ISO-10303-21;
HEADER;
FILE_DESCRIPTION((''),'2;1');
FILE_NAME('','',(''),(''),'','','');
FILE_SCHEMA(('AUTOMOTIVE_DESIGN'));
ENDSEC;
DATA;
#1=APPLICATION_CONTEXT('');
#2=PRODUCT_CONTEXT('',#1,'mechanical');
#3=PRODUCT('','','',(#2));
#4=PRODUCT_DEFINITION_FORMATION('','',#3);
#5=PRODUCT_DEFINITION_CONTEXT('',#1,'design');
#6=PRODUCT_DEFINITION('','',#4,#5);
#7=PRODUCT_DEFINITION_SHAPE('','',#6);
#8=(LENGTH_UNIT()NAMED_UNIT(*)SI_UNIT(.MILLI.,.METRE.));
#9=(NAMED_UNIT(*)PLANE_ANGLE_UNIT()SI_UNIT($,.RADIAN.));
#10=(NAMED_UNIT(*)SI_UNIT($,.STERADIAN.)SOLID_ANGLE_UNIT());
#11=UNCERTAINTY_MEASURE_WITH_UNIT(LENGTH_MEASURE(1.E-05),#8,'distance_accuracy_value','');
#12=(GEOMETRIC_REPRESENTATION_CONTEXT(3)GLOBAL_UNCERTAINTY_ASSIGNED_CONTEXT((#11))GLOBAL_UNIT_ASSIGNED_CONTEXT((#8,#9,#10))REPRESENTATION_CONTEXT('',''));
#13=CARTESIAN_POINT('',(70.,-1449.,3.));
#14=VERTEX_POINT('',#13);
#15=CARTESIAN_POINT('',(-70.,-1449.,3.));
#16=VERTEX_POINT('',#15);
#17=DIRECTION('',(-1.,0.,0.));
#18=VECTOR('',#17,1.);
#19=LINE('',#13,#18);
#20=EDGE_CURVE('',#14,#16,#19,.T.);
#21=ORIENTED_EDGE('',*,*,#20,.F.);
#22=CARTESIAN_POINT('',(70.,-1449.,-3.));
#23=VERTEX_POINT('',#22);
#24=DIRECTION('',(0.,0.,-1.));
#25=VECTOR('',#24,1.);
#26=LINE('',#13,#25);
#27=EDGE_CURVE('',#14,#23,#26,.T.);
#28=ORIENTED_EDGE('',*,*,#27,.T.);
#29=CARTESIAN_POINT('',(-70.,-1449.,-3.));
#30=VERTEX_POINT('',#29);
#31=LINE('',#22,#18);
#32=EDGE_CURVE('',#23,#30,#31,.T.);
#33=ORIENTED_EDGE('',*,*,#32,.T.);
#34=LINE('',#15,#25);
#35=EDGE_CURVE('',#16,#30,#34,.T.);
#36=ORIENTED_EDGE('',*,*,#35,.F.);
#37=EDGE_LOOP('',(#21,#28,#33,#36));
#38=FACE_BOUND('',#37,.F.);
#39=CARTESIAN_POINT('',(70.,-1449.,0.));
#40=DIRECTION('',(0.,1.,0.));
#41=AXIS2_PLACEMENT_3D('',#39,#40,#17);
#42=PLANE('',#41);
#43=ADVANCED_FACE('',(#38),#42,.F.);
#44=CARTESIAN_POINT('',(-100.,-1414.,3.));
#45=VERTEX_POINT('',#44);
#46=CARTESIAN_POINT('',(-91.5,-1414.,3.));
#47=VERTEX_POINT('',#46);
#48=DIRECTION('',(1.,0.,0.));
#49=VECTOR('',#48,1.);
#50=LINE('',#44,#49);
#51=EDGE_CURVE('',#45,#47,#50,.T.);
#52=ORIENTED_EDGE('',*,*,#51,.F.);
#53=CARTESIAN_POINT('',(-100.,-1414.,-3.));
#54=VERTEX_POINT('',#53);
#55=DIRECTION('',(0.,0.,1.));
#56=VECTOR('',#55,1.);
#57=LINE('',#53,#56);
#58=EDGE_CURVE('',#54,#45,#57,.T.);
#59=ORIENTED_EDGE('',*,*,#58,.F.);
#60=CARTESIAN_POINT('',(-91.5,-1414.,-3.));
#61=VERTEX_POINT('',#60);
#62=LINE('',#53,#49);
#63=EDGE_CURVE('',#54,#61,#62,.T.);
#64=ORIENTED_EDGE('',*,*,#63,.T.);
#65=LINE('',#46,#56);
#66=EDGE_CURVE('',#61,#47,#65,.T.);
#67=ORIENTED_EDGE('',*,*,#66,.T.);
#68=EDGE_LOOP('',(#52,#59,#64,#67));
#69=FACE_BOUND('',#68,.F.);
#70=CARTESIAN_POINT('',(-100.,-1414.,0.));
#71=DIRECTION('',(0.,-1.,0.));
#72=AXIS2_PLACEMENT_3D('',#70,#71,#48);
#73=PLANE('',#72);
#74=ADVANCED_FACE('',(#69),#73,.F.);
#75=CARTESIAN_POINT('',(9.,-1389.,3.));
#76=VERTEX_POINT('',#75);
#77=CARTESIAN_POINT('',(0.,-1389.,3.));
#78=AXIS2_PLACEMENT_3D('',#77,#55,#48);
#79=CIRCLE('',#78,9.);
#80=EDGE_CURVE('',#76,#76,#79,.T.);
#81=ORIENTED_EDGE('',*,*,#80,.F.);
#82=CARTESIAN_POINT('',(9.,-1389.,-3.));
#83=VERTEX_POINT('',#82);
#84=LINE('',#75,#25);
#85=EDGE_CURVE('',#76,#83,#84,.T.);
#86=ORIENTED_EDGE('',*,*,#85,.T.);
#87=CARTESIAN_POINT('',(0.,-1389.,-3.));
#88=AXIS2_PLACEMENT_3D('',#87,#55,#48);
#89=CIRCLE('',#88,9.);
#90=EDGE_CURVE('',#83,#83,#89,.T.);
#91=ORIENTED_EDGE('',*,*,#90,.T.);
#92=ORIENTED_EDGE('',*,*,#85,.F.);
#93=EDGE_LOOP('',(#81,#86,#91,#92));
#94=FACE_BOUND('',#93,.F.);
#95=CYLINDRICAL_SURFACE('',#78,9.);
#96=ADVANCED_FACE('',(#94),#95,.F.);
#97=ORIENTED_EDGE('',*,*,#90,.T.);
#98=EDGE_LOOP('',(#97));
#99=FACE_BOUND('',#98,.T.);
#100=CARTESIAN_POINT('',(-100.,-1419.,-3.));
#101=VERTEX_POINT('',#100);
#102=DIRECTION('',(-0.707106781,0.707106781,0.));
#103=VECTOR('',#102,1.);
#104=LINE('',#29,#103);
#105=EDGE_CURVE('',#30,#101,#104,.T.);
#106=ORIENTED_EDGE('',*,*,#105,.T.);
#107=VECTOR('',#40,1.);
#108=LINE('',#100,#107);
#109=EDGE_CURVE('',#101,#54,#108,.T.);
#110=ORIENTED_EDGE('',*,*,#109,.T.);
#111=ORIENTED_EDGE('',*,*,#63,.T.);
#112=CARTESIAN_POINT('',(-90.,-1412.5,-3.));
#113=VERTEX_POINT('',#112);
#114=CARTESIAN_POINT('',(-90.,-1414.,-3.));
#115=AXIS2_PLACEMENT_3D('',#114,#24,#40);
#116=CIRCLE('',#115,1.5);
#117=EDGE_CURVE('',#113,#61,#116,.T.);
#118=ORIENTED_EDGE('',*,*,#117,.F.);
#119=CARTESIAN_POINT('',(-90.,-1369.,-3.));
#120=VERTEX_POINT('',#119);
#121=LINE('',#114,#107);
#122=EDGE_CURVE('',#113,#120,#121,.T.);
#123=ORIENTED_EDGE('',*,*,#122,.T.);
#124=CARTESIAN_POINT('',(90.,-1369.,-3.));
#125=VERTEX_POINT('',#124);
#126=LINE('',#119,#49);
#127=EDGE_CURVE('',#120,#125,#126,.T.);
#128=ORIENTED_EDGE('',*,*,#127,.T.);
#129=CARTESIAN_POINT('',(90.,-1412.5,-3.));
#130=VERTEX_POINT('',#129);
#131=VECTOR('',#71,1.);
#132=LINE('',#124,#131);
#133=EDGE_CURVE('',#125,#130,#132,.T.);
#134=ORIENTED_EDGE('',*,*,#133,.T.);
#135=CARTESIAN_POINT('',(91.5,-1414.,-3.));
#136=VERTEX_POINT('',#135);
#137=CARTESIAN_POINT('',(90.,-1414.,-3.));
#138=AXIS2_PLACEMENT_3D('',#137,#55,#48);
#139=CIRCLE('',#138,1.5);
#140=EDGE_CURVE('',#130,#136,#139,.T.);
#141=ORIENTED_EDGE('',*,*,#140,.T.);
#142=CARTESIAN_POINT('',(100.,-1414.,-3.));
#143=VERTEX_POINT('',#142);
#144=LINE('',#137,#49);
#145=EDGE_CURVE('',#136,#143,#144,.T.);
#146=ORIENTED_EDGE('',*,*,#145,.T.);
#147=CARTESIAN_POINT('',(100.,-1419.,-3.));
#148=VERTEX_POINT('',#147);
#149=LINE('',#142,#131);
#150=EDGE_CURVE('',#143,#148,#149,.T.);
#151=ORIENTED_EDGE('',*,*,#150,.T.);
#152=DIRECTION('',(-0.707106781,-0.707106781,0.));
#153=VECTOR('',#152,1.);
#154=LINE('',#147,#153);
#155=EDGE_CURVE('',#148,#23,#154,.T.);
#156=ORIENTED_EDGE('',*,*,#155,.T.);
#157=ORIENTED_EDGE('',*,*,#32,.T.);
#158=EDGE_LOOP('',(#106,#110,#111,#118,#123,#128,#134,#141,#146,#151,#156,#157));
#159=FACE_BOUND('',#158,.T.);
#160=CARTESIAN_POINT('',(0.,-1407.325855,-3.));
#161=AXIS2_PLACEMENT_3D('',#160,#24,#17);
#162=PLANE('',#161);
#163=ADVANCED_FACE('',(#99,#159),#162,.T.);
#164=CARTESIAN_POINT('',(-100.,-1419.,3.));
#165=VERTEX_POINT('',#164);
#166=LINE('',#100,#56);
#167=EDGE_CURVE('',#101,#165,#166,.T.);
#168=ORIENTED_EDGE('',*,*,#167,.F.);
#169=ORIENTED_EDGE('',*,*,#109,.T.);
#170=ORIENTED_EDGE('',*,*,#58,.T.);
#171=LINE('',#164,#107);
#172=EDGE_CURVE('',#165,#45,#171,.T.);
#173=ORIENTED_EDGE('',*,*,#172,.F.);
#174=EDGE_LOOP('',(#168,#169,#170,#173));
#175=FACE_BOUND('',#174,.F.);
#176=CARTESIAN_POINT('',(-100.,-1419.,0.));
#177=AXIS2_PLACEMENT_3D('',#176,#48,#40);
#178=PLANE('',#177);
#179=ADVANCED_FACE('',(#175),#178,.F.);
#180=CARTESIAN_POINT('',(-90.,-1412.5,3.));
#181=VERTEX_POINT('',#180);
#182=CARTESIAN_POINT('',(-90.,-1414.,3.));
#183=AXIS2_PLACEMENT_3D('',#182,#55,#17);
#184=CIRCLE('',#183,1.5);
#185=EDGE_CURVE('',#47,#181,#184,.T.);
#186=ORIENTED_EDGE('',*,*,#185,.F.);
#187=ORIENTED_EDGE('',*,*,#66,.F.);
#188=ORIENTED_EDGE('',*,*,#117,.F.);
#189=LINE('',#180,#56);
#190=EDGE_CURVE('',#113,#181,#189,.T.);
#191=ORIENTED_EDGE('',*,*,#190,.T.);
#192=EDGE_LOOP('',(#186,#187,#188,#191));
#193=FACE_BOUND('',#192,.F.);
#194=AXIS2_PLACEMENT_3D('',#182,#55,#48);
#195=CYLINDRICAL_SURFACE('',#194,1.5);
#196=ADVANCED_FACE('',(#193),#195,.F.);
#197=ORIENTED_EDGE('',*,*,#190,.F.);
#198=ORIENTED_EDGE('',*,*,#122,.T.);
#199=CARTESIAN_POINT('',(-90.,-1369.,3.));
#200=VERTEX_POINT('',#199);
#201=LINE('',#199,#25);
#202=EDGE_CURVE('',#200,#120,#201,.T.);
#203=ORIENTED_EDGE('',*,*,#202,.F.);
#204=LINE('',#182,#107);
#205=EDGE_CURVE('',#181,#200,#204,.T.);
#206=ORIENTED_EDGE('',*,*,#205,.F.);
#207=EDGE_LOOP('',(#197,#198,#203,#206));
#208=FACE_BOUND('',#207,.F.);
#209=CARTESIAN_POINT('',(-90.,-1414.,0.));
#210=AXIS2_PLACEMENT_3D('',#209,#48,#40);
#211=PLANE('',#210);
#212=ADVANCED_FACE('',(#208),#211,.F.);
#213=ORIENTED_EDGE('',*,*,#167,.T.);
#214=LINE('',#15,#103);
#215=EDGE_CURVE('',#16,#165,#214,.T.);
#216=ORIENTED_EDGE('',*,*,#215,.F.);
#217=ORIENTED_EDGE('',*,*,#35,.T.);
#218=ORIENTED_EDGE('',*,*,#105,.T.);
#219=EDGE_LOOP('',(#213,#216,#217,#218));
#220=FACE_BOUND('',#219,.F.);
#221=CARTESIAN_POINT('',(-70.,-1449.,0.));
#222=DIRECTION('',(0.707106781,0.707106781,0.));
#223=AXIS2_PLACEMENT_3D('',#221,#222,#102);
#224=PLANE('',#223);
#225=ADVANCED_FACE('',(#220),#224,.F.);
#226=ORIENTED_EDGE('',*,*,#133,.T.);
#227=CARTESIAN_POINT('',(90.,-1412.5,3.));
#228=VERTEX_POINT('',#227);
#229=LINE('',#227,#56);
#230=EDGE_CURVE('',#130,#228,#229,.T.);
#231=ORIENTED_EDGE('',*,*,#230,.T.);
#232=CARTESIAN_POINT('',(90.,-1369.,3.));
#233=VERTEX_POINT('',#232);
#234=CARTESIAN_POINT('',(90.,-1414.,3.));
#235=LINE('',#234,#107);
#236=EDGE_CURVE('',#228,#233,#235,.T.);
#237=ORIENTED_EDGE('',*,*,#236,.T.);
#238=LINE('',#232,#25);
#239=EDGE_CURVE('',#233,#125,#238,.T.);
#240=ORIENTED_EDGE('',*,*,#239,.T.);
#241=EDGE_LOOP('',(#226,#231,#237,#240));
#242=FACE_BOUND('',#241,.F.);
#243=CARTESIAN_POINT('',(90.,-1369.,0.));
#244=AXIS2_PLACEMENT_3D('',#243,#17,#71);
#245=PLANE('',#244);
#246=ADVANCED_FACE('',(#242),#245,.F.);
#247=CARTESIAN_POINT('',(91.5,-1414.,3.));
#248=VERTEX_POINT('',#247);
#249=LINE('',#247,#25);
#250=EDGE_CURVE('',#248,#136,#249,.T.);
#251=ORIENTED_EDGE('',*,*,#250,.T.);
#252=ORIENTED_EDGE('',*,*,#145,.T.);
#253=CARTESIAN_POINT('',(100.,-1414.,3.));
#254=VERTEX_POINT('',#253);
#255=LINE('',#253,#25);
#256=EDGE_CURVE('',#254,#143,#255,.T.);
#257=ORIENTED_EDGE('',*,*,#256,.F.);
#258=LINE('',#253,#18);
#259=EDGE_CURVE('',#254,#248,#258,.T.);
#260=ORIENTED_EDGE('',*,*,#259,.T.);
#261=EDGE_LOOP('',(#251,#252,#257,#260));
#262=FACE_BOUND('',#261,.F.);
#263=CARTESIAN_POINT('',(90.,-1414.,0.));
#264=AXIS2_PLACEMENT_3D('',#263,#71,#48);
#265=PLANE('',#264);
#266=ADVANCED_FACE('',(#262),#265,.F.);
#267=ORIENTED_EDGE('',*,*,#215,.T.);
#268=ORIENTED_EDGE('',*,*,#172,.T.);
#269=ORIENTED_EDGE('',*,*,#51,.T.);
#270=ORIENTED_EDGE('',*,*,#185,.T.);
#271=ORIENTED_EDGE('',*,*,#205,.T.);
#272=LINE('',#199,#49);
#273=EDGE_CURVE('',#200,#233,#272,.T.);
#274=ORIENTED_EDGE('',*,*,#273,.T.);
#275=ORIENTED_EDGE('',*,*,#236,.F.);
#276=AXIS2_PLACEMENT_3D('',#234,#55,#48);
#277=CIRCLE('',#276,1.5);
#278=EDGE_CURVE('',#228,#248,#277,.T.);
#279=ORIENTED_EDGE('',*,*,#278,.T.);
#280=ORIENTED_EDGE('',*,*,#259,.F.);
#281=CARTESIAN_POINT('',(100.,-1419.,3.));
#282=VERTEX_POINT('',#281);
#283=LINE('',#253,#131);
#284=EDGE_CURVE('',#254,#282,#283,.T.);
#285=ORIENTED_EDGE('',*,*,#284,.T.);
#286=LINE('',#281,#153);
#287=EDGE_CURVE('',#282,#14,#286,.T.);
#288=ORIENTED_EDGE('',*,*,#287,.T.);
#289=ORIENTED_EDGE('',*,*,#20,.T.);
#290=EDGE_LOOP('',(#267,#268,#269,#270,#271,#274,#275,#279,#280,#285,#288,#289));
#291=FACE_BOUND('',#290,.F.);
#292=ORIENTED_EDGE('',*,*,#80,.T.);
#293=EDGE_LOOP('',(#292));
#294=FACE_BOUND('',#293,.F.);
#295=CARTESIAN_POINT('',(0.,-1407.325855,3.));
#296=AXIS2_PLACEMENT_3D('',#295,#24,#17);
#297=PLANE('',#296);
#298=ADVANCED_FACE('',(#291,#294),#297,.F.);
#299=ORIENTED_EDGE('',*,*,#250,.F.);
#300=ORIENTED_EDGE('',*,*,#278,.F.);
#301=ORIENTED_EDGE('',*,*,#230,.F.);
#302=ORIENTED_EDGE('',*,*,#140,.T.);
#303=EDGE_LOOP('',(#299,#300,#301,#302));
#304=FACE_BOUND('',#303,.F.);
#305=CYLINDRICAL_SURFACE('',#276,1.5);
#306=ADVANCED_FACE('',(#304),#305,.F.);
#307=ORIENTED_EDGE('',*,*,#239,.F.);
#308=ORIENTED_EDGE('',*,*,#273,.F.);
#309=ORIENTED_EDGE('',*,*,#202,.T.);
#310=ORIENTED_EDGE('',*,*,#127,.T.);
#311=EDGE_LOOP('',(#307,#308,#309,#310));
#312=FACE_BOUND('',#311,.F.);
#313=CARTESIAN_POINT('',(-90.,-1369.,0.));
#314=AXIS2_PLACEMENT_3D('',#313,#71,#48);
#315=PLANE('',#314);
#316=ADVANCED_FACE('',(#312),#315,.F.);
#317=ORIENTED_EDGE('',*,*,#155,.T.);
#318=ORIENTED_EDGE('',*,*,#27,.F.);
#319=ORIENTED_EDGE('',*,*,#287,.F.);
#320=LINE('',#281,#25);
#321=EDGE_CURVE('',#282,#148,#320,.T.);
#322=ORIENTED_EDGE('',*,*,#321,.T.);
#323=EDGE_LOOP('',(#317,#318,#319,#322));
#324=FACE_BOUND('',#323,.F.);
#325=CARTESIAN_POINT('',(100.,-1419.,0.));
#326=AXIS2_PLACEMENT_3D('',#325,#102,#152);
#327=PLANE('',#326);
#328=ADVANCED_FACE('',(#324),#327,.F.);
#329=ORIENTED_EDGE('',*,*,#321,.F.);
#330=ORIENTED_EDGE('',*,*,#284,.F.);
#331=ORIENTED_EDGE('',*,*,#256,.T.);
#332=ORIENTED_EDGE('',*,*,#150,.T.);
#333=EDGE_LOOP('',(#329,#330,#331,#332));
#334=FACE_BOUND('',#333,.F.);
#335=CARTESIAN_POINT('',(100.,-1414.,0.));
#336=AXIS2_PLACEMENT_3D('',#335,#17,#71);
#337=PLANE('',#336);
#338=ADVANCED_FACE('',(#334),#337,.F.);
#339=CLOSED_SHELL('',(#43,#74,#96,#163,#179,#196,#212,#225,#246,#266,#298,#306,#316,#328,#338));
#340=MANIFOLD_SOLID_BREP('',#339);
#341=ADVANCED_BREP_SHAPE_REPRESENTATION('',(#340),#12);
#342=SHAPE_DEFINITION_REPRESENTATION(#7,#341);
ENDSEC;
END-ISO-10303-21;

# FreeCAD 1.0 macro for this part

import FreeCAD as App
import Part
import Sketcher
from FreeCAD import Vector

doc = App.newDocument("Part")
body = doc.addObject("PartDesign::Body", "Body")

sketch1 = body.newObject("Sketcher::SketchObject", "Sketch")
sketch1.AttachmentSupport = (doc.getObject("XY_Plane"), [""])
sketch1.MapMode = "FlatFace"
sketch1.addGeometry(Part.LineSegment(Vector(-90, -1369, 0), Vector(-90, -1414, 0)), False)
sketch1.addGeometry(Part.LineSegment(Vector(-90, -1414, 0), Vector(-100, -1414, 0)), False)
sketch1.addGeometry(Part.LineSegment(Vector(-100, -1414, 0), Vector(-100, -1419, 0)), False)
sketch1.addGeometry(Part.LineSegment(Vector(-100, -1419, 0), Vector(-70, -1449, 0)), False)
sketch1.addGeometry(Part.LineSegment(Vector(-70, -1449, 0), Vector(70, -1449, 0)), False)
sketch1.addGeometry(Part.LineSegment(Vector(70, -1449, 0), Vector(100, -1419, 0)), False)
sketch1.addGeometry(Part.LineSegment(Vector(100, -1419, 0), Vector(100, -1414, 0)), False)
sketch1.addGeometry(Part.LineSegment(Vector(100, -1414, 0), Vector(90, -1414, 0)), False)
sketch1.addGeometry(Part.LineSegment(Vector(90, -1414, 0), Vector(90, -1369, 0)), False)
sketch1.addGeometry(Part.LineSegment(Vector(90, -1369, 0), Vector(-90, -1369, 0)), False)
sketch1.addConstraint(Sketcher.Constraint("Coincident", 0, 2, 1, 1))
sketch1.addConstraint(Sketcher.Constraint("Coincident", 1, 2, 2, 1))
sketch1.addConstraint(Sketcher.Constraint("Coincident", 2, 2, 3, 1))
sketch1.addConstraint(Sketcher.Constraint("Coincident", 3, 2, 4, 1))
sketch1.addConstraint(Sketcher.Constraint("Coincident", 4, 2, 5, 1))
sketch1.addConstraint(Sketcher.Constraint("Coincident", 5, 2, 6, 1))
sketch1.addConstraint(Sketcher.Constraint("Coincident", 6, 2, 7, 1))
sketch1.addConstraint(Sketcher.Constraint("Coincident", 7, 2, 8, 1))
sketch1.addConstraint(Sketcher.Constraint("Coincident", 8, 2, 9, 1))
sketch1.addConstraint(Sketcher.Constraint("Coincident", 9, 2, 0, 1))
sketch1.addConstraint(Sketcher.Constraint("Vertical", 0))
sketch1.addConstraint(Sketcher.Constraint("Horizontal", 1))
sketch1.addConstraint(Sketcher.Constraint("Vertical", 2))
sketch1.addConstraint(Sketcher.Constraint("Horizontal", 4))
sketch1.addConstraint(Sketcher.Constraint("Vertical", 6))
sketch1.addConstraint(Sketcher.Constraint("Horizontal", 7))
sketch1.addConstraint(Sketcher.Constraint("Vertical", 8))
sketch1.addConstraint(Sketcher.Constraint("Horizontal", 9))
sketch1.addConstraint(Sketcher.Constraint("Symmetric", 2, 2, 5, 2, -2))
sketch1.addConstraint(Sketcher.Constraint("Symmetric", 0, 2, 7, 2, -2))
sketch1.addConstraint(Sketcher.Constraint("Perpendicular", 3, 5))
sketch1.addConstraint(Sketcher.Constraint("Equal", 3, 5))
sketch1.addConstraint(Sketcher.Constraint("DistanceX", 1, 2, 1, 1, 10.0))
sketch1.addConstraint(Sketcher.Constraint("DistanceX", 4, 1, 4, 2, 140.0))
sketch1.addConstraint(Sketcher.Constraint("DistanceX", 9, 2, 9, 1, 180.0))
sketch1.addConstraint(Sketcher.Constraint("DistanceY", 0, 2, 0, 1, 45.0))
sketch1.addConstraint(Sketcher.Constraint("DistanceY", 2, 2, 2, 1, 5.0))
sketch1.addConstraint(Sketcher.Constraint("DistanceY", 0, 2, -1, 1, 1414.0))
pad1 = body.newObject("PartDesign::Pad", "Pad")
pad1.Profile = sketch1
pad1.Type = "TwoLengths"
pad1.Length = 3
pad1.Length2 = 3

sketch2 = body.newObject("Sketcher::SketchObject", "Sketch001")
sketch2.AttachmentSupport = (doc.getObject("XY_Plane"), [""])
sketch2.MapMode = "FlatFace"
sketch2.AttachmentOffset = App.Placement(Vector(0, 0, 3), App.Rotation())
sketch2.addGeometry(Part.Circle(Vector(0, -1389, 0), Vector(0, 0, 1), 9), False)
sketch2.addConstraint(Sketcher.Constraint("PointOnObject", 0, 3, -2))
sketch2.addConstraint(Sketcher.Constraint("Diameter", 0, 18.0))
sketch2.addConstraint(Sketcher.Constraint("DistanceY", 0, 3, -1, 1, 1389.0))
pocket1 = body.newObject("PartDesign::Pocket", "Pocket")
pocket1.Profile = sketch2
pocket1.Type = "ThroughAll"
pocket1.Midplane = True

sketch3 = body.newObject("Sketcher::SketchObject", "Sketch002")
sketch3.AttachmentSupport = (doc.getObject("XY_Plane"), [""])
sketch3.MapMode = "FlatFace"
sketch3.AttachmentOffset = App.Placement(Vector(0, 0, 3), App.Rotation())
sketch3.addGeometry(Part.Circle(Vector(-90, -1414, 0), Vector(0, 0, 1), 1.5), False)
sketch3.addGeometry(Part.Circle(Vector(90, -1414, 0), Vector(0, 0, 1), 1.5), False)
sketch3.addConstraint(Sketcher.Constraint("Equal", 0, 1))
sketch3.addConstraint(Sketcher.Constraint("Symmetric", 0, 3, 1, 3, -2))
sketch3.addConstraint(Sketcher.Constraint("Diameter", 0, 3.0))
sketch3.addConstraint(Sketcher.Constraint("DistanceX", 0, 3, -1, 1, 90.0))
sketch3.addConstraint(Sketcher.Constraint("DistanceY", 0, 3, -1, 1, 1414.0))
pocket2 = body.newObject("PartDesign::Pocket", "Pocket001")
pocket2.Profile = sketch3
pocket2.Type = "ThroughAll"
pocket2.Midplane = True

doc.recompute()
